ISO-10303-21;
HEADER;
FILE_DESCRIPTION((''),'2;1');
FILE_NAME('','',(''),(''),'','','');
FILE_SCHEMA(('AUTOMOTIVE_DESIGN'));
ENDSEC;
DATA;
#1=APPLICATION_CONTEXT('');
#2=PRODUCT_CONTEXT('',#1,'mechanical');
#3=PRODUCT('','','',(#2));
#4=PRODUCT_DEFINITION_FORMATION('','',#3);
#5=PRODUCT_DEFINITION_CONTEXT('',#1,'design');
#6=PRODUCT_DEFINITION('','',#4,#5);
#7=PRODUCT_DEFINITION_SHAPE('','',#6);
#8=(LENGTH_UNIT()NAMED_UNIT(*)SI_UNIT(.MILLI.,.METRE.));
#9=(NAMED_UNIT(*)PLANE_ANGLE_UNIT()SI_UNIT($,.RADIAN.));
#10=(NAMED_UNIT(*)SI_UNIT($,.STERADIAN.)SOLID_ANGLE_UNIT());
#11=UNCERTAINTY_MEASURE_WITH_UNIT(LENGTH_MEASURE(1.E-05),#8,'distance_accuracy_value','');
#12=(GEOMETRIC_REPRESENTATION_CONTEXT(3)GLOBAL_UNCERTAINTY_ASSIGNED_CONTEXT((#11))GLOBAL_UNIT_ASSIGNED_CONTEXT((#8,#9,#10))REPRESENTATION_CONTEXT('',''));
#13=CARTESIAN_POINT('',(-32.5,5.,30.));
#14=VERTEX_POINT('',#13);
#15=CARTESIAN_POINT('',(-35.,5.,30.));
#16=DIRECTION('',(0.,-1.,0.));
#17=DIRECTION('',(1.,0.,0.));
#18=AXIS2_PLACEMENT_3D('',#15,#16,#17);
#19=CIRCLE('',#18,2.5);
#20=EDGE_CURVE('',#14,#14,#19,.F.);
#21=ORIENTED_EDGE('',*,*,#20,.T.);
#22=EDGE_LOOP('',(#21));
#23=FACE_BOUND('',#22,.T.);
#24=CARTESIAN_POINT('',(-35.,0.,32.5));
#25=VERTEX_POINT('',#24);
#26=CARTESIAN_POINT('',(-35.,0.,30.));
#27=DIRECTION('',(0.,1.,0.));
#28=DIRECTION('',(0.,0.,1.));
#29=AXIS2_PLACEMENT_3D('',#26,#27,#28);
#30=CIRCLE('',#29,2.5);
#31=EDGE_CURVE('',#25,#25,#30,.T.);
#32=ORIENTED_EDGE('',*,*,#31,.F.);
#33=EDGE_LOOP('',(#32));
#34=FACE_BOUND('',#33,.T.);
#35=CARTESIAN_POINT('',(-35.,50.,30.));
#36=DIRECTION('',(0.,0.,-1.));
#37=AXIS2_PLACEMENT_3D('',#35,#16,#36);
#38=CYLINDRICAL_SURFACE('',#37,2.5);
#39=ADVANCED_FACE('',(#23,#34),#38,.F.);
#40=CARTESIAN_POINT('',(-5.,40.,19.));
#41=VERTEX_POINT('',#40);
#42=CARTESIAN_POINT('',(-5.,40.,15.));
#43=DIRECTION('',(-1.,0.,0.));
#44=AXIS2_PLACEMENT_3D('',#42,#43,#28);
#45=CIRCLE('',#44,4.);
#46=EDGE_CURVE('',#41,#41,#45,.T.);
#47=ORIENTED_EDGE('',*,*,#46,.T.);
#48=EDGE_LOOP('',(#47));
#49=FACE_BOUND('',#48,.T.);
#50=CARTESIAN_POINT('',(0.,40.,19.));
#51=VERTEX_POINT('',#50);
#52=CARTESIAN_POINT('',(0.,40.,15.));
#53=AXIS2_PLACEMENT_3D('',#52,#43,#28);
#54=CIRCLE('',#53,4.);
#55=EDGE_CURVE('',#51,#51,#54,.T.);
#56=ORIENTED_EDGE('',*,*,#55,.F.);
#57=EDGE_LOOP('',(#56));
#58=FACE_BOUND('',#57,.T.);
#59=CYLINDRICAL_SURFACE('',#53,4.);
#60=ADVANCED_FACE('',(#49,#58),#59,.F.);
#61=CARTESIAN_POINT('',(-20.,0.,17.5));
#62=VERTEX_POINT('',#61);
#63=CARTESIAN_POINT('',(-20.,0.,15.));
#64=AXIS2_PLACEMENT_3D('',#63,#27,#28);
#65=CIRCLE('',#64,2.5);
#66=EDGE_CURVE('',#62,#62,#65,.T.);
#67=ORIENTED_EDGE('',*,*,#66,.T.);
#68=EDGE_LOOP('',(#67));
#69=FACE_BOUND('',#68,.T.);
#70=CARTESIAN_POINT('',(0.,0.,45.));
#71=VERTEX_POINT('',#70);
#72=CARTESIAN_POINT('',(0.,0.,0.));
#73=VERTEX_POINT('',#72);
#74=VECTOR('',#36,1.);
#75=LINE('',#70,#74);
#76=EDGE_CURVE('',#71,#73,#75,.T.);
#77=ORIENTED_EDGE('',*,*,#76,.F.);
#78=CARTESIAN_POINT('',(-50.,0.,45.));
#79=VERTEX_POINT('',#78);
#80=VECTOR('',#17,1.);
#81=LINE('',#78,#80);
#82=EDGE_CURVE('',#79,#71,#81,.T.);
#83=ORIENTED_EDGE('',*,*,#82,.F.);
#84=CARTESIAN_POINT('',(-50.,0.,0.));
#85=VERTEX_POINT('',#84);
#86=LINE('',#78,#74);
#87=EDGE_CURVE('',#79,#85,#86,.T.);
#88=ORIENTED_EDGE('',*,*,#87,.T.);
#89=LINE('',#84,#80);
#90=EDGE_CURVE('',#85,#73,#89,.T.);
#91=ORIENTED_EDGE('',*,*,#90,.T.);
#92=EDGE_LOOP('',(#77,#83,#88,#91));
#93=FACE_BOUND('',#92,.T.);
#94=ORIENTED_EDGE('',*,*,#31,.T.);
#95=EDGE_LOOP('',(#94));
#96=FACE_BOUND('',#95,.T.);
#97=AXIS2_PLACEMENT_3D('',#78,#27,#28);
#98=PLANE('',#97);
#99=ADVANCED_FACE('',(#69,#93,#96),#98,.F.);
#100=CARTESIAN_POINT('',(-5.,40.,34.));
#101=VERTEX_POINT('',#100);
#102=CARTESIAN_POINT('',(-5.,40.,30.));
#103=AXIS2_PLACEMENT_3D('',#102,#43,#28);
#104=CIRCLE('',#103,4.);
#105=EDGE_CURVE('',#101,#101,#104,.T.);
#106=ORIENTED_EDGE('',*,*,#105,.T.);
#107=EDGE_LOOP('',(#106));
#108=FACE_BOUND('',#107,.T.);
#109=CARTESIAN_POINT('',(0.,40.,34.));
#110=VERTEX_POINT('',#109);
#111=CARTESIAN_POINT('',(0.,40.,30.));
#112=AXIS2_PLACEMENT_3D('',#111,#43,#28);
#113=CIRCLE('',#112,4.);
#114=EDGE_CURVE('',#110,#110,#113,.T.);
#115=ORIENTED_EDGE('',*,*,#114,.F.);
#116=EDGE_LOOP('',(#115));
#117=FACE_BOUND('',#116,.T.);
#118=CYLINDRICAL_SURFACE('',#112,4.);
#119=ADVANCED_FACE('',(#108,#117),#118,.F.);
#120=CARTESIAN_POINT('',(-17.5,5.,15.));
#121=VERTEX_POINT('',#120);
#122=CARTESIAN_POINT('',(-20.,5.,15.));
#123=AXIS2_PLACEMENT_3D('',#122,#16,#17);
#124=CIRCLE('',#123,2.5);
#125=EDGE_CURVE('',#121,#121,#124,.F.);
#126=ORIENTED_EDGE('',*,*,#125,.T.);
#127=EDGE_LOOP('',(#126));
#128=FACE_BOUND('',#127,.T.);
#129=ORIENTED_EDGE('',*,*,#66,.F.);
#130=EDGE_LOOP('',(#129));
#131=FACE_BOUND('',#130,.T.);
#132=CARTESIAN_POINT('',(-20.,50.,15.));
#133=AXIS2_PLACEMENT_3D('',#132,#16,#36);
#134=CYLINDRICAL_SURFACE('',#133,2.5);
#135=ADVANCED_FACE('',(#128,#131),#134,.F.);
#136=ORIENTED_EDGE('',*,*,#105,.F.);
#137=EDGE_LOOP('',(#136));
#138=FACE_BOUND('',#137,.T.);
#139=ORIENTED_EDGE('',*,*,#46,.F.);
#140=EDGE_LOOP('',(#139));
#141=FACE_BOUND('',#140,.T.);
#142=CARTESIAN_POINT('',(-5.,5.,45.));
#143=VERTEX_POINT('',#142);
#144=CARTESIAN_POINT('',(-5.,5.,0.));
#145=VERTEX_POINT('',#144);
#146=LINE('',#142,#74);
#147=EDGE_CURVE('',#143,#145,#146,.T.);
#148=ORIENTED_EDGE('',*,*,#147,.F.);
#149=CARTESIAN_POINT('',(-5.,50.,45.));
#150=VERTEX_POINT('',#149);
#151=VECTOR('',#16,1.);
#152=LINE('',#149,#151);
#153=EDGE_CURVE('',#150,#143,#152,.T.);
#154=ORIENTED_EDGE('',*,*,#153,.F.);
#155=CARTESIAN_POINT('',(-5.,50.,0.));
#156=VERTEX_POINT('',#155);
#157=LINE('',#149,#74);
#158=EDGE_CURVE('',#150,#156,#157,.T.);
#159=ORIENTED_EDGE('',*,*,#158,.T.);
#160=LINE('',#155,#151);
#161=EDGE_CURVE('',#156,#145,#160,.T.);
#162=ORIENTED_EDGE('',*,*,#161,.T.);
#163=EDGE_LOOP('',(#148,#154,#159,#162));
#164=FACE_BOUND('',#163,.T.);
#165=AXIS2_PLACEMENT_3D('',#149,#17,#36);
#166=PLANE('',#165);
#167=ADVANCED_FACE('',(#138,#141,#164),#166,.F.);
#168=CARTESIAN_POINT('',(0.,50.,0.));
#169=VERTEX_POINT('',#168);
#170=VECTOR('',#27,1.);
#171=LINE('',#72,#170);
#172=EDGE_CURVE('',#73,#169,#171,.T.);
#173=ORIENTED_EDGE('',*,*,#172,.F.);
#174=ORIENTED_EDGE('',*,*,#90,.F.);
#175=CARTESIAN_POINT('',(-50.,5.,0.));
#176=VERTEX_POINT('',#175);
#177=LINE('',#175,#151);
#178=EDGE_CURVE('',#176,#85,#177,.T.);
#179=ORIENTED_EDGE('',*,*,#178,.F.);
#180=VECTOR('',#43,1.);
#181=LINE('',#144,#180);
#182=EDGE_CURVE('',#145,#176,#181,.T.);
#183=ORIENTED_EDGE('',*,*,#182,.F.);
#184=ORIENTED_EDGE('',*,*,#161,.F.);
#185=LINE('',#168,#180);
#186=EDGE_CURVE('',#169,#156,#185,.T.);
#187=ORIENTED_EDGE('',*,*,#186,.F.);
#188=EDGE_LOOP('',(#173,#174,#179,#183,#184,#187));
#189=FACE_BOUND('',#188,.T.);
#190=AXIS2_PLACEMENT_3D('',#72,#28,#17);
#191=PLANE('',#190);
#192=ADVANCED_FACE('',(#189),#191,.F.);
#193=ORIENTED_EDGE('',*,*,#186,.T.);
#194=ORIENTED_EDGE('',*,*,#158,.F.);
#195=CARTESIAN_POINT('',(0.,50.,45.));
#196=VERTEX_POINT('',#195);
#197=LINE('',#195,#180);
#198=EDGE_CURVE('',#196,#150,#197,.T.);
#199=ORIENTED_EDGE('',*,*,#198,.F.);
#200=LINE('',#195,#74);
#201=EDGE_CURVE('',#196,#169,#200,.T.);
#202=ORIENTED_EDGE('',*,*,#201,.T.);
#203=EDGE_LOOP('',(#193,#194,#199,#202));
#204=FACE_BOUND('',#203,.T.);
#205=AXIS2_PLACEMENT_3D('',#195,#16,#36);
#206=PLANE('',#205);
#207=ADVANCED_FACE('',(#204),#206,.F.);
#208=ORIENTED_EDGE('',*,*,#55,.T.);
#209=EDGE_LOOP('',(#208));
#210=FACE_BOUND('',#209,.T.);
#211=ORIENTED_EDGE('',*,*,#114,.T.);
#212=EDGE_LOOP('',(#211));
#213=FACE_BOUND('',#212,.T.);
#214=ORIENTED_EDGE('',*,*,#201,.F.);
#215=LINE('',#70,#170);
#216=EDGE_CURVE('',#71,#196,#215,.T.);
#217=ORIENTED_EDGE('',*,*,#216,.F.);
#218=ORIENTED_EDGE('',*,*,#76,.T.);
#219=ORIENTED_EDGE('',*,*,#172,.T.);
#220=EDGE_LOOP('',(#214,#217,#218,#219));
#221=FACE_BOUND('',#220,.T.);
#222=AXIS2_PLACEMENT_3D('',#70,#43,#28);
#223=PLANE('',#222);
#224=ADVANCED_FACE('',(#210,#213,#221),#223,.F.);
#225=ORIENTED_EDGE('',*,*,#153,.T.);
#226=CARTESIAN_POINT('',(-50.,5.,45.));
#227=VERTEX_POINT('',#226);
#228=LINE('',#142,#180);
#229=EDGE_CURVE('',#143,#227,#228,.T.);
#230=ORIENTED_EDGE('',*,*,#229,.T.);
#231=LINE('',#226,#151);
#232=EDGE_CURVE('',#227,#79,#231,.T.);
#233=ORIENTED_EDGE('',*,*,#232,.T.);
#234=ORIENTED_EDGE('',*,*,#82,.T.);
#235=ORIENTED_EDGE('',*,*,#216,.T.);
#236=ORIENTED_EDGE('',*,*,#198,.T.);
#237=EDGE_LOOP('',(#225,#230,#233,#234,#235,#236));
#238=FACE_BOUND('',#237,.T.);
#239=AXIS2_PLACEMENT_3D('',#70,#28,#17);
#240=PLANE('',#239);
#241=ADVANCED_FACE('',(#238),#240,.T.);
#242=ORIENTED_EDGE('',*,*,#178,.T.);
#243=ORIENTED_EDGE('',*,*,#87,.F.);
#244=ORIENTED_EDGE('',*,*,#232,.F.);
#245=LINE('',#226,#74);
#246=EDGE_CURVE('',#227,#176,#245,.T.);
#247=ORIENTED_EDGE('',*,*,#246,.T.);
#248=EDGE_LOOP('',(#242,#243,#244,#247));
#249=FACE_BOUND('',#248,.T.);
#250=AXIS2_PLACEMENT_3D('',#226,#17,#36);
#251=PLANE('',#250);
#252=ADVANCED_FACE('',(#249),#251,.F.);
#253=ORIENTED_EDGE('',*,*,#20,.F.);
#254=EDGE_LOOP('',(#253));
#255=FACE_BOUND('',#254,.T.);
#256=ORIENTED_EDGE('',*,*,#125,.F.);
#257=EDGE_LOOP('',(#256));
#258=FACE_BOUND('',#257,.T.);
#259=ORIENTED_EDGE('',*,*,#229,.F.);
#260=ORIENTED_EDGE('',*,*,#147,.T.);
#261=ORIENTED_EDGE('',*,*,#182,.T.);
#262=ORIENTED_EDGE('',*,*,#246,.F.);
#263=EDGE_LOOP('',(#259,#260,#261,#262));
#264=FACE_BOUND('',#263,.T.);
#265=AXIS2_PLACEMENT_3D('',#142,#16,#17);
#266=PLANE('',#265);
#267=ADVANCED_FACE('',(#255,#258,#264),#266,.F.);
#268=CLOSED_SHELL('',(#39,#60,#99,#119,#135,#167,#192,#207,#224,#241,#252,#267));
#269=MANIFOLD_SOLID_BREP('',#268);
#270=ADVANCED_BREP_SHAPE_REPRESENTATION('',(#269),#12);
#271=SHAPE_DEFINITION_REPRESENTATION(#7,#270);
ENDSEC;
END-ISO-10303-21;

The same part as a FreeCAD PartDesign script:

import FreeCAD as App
import Part
import Sketcher
from FreeCAD import Vector
Q = App.Units.Quantity


def add_polygon(sketch, points):
    """Adds a closed chain of lines whose ends are joined by coincident constraints."""
    first, n = sketch.GeometryCount, len(points)
    for a, b in zip(points, points[1:] + points[:1]):
        sketch.addGeometry(Part.LineSegment(App.Vector(*a, 0), App.Vector(*b, 0)), False)
    for i in range(n):
        sketch.addConstraint(Sketcher.Constraint("Coincident", first + i, 2, first + (i + 1) % n, 1))

doc = App.newDocument("Part")
body = doc.addObject("PartDesign::Body", "Body")

# Sketch on XY plane
sketch1 = body.newObject("Sketcher::SketchObject", "Sketch")
sketch1.AttachmentSupport = (doc.getObject("XY_Plane"), [""])
sketch1.MapMode = "FlatFace"
add_polygon(sketch1, [(0, 0), (0, 50), (-5, 50), (-5, 5), (-50, 5), (-50, 0)])  # lines 0-5
sketch1.addConstraint([
    Sketcher.Constraint("Vertical", 0),
    Sketcher.Constraint("Horizontal", 1),
    Sketcher.Constraint("Vertical", 2),
    Sketcher.Constraint("Horizontal", 3),
    Sketcher.Constraint("Vertical", 4),
    Sketcher.Constraint("Horizontal", 5),
    Sketcher.Constraint("Coincident", 5, 2, -1, 1),
    Sketcher.Constraint("Equal", 5, 0),
    Sketcher.Constraint("Equal", 3, 2),
    Sketcher.Constraint("DistanceX", 1, 2, 1, 1, Q("5 mm")),
    Sketcher.Constraint("DistanceX", 3, 2, 3, 1, Q("45 mm")),
])
pad1 = body.newObject("PartDesign::Pad", "Pad")
pad1.Profile = sketch1
pad1.Length = 45

# Sketch on YZ plane
sketch2 = body.newObject("Sketcher::SketchObject", "Sketch001")
sketch2.AttachmentSupport = (doc.getObject("YZ_Plane"), [""])
sketch2.MapMode = "FlatFace"
sketch2.AttachmentOffset = App.Placement(Vector(0, 0, -5), App.Rotation())
sketch2.addGeometry([
    Part.Circle(Vector(40, 15, 0), Vector(0, 0, 1), 4),
    Part.Circle(Vector(40, 30, 0), Vector(0, 0, 1), 4),
], False)
sketch2.addConstraint([
    Sketcher.Constraint("Equal", 0, 1),
    Sketcher.Constraint("Vertical", 0, 3, 1, 3),
    Sketcher.Constraint("Diameter", 0, Q("8 mm")),
    Sketcher.Constraint("DistanceX", -1, 1, 0, 3, Q("40 mm")),
    Sketcher.Constraint("DistanceY", -1, 1, 0, 3, Q("15 mm")),
    Sketcher.Constraint("DistanceY", -1, 1, 1, 3, Q("30 mm")),
])
pocket1 = body.newObject("PartDesign::Pocket", "Pocket")
pocket1.Profile = sketch2
pocket1.Type = "ThroughAll"
pocket1.Reversed = True

# Sketch on XZ plane
sketch3 = body.newObject("Sketcher::SketchObject", "Sketch002")
sketch3.AttachmentSupport = (doc.getObject("XZ_Plane"), [""])
sketch3.MapMode = "FlatFace"
sketch3.addGeometry([
    Part.Circle(Vector(-35, 30, 0), Vector(0, 0, 1), 2.5),
    Part.Circle(Vector(-20, 15, 0), Vector(0, 0, 1), 2.5),
], False)
sketch3.addConstraint([
    Sketcher.Constraint("Equal", 0, 1),
    Sketcher.Constraint("Diameter", 0, Q("5 mm")),
    Sketcher.Constraint("DistanceX", 0, 3, -1, 1, Q("35 mm")),
    Sketcher.Constraint("DistanceY", -1, 1, 0, 3, Q("30 mm")),
    Sketcher.Constraint("DistanceX", 1, 3, -1, 1, Q("20 mm")),
    Sketcher.Constraint("DistanceY", -1, 1, 1, 3, Q("15 mm")),
])
pocket2 = body.newObject("PartDesign::Pocket", "Pocket001")
pocket2.Profile = sketch3
pocket2.Type = "ThroughAll"

doc.recompute()
